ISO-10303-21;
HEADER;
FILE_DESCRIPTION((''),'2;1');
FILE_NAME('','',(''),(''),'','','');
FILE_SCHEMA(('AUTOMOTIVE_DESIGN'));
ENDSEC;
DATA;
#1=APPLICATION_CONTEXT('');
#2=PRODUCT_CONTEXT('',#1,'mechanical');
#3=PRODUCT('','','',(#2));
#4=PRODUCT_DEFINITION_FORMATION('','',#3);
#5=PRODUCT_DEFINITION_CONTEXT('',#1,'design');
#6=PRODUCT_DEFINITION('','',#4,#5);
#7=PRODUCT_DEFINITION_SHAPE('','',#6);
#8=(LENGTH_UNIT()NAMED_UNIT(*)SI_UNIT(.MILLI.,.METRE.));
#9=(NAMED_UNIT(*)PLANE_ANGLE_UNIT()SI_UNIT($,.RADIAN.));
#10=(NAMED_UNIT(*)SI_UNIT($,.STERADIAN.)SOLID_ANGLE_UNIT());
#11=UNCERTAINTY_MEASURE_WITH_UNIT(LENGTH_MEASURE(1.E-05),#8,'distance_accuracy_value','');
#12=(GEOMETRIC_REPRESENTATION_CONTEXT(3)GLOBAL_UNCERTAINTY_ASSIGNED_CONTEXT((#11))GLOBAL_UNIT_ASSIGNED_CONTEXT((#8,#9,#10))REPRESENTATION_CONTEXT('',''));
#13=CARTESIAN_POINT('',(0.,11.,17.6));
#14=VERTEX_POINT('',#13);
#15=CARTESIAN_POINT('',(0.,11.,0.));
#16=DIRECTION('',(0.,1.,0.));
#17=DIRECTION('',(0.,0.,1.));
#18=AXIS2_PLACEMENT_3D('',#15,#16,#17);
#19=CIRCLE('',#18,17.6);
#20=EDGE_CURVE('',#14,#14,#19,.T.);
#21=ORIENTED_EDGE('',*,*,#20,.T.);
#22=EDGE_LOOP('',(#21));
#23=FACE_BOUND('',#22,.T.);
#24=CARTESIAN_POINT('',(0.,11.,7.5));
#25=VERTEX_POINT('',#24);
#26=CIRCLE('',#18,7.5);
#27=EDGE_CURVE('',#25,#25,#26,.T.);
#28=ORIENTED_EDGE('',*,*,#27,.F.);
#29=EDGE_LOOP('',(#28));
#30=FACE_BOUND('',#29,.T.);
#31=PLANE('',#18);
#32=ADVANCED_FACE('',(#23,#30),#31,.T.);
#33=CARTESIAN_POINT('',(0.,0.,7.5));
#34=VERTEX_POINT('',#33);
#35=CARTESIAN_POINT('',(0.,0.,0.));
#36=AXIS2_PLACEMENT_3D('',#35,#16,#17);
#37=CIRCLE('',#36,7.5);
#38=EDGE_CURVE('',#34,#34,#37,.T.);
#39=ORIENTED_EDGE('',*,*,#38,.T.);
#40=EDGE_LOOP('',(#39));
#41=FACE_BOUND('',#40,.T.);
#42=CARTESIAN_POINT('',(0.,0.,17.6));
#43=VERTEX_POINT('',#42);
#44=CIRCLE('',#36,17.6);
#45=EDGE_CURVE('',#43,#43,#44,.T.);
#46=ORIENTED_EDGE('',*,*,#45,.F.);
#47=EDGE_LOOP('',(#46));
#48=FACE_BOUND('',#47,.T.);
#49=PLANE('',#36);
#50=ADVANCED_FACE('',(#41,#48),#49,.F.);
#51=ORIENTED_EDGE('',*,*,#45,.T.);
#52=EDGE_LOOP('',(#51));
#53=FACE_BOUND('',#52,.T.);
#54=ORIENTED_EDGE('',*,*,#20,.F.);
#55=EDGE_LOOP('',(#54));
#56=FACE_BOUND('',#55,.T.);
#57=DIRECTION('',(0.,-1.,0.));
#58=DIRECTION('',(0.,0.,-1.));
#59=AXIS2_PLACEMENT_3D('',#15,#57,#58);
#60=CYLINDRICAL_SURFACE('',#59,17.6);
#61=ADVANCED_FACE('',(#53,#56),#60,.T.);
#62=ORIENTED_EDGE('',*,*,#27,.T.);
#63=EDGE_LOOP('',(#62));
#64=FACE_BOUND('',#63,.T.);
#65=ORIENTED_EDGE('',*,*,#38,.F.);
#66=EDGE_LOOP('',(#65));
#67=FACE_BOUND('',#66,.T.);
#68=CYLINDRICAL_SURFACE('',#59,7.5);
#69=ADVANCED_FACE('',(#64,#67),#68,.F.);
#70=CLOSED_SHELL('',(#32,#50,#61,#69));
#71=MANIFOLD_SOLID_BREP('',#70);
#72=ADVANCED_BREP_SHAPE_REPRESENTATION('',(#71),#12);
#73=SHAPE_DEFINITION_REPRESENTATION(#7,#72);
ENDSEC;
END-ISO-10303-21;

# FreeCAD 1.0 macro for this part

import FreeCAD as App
import Part
import Sketcher
from FreeCAD import Vector
Q = App.Units.Quantity

doc = App.newDocument("Part")
body = doc.addObject("PartDesign::Body", "Body")

# Sketch on XZ plane
sketch1 = body.newObject("Sketcher::SketchObject", "Sketch")
sketch1.AttachmentSupport = (doc.getObject("XZ_Plane"), [""])
sketch1.MapMode = "FlatFace"
sketch1.addGeometry([
    Part.Circle(Vector(0, 0, 0), Vector(0, 0, 1), 18),
    Part.Circle(Vector(0, 0, 0), Vector(0, 0, 1), 8),
], False)
sketch1.addConstraint([
    Sketcher.Constraint("Coincident", 0, 3, -1, 1),
    Sketcher.Constraint("Coincident", 1, 3, -1, 1),
    Sketcher.Constraint("Diameter", 1, Q("15 mm")),
    Sketcher.Constraint("Diameter", 0, Q("35.2 mm")),
])
pad1 = body.newObject("PartDesign::Pad", "Pad")
pad1.Profile = sketch1
pad1.Length = 11
pad1.Reversed = True

doc.recompute()
